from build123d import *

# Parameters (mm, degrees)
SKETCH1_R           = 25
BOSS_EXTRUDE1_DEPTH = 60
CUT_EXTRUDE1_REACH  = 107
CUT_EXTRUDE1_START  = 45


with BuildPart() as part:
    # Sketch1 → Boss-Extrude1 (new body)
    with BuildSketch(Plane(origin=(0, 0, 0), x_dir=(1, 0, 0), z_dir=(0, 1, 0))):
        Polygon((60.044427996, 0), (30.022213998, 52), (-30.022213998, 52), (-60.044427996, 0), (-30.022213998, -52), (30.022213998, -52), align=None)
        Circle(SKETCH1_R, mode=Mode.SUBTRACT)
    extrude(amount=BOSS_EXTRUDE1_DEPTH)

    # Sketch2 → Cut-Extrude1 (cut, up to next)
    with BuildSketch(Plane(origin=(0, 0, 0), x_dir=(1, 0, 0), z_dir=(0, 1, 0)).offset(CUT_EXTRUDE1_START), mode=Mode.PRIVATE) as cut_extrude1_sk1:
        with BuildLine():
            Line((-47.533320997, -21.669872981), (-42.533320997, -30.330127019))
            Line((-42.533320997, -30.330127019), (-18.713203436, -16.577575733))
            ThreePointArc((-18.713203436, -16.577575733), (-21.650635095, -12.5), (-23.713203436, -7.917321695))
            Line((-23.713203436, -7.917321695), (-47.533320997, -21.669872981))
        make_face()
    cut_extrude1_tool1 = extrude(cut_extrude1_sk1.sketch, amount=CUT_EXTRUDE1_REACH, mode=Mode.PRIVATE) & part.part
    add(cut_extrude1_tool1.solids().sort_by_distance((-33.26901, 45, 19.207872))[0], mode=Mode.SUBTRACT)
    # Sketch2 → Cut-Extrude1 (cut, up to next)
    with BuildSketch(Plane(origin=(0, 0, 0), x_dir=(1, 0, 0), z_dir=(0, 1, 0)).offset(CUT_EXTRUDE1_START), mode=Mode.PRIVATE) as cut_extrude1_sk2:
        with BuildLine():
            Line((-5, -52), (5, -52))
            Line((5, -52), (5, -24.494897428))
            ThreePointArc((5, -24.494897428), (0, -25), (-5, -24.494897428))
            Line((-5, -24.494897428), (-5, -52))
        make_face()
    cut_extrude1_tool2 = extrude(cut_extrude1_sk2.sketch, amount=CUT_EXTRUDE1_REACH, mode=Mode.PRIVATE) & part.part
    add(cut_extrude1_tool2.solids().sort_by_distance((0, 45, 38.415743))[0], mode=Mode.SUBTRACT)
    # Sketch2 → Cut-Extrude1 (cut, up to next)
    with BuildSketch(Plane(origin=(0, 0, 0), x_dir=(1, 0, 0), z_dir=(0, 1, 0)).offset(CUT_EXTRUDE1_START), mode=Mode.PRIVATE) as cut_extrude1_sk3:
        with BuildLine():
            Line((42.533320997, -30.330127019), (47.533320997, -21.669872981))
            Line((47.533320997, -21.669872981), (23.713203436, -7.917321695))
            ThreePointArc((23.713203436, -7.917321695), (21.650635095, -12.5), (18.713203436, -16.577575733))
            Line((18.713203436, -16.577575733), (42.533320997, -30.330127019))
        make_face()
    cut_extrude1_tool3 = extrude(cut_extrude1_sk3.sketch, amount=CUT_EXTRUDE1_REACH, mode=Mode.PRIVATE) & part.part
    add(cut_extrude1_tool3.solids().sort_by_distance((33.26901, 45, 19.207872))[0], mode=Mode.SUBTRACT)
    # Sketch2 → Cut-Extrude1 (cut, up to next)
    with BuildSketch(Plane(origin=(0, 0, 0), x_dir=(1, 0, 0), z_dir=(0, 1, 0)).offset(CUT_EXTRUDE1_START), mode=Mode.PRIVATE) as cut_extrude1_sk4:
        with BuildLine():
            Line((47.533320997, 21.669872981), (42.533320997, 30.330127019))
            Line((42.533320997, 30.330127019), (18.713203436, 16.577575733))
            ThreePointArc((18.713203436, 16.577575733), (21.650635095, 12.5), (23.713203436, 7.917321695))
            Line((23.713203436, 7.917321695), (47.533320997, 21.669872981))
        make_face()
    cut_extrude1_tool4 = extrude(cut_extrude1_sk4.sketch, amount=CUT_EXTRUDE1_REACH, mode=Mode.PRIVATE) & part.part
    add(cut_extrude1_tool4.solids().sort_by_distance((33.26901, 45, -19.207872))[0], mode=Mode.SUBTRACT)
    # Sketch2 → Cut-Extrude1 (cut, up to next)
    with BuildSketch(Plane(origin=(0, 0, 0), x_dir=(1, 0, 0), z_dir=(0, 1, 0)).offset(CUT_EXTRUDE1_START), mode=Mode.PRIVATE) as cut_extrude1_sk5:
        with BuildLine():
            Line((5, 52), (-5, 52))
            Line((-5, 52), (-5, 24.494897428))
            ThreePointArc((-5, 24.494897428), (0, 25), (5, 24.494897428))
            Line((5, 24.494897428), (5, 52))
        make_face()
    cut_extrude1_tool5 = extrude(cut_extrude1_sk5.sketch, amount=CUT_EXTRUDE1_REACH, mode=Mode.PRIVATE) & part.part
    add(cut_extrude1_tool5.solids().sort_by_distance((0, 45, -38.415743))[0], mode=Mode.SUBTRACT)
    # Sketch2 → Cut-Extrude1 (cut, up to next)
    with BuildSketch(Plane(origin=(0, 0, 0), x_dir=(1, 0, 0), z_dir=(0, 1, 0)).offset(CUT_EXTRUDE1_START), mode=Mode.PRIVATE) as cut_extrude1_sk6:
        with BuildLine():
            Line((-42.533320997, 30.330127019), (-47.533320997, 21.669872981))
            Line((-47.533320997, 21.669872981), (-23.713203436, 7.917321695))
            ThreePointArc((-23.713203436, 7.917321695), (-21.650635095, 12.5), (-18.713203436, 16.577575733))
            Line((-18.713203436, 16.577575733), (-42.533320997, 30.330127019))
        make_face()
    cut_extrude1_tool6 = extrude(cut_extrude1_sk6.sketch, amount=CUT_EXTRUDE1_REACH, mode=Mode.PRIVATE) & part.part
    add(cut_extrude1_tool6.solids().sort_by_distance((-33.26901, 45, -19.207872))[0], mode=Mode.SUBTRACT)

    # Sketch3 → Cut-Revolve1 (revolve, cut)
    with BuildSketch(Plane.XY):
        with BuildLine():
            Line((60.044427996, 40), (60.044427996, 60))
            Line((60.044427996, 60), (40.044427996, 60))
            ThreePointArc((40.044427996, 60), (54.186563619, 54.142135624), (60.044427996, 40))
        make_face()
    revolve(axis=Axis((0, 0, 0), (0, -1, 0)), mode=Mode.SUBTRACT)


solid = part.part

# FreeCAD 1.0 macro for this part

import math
import FreeCAD as App
import Part
import Sketcher
from FreeCAD import Vector
Q = App.Units.Quantity

doc = App.newDocument("Part")
params = doc.addObject("Spreadsheet::Sheet", "Params")
for row, (alias, value) in enumerate([
    ("sketch1_diameter", "50 mm"),
    ("pad1_length", "60 mm"),
    ("sketch2_radius", "25 mm"),
    ("sketch2_length", "10 mm"),
    ("sketch3_radius", "25 mm"),
    ("sketch3_width", "10 mm"),
    ("sketch4_radius", "25 mm"),
    ("sketch4_length", "10 mm"),
    ("sketch5_radius", "25 mm"),
    ("sketch5_length", "10 mm"),
    ("sketch6_radius", "25 mm"),
    ("sketch6_width", "10 mm"),
    ("sketch7_radius", "25 mm"),
    ("sketch7_length", "10 mm"),
    ("sketch8_radius", "20 mm"),
    ("groove_angle", "360 deg"),
], start=1):
    params.set(f"A{row}", alias)
    params.set(f"B{row}", "=" + value)
    params.setAlias(f"B{row}", alias)

body = doc.addObject("PartDesign::Body", "Body")

sketch1 = body.newObject("Sketcher::SketchObject", "Sketch")
sketch1.AttachmentSupport = (doc.getObject("XZ_Plane"), [""])
sketch1.MapMode = "FlatFace"
sketch1.addGeometry(Part.LineSegment(Vector(60, 0, 0), Vector(30, -52, 0)), False)
sketch1.addGeometry(Part.LineSegment(Vector(30, -52, 0), Vector(-30, -52, 0)), False)
sketch1.addGeometry(Part.LineSegment(Vector(-30, -52, 0), Vector(-60, 0, 0)), False)
sketch1.addGeometry(Part.LineSegment(Vector(-60, 0, 0), Vector(-30, 52, 0)), False)
sketch1.addGeometry(Part.LineSegment(Vector(-30, 52, 0), Vector(30, 52, 0)), False)
sketch1.addGeometry(Part.LineSegment(Vector(30, 52, 0), Vector(60, 0, 0)), False)
sketch1.addGeometry(Part.Circle(Vector(0, 0, 0), Vector(0, 0, 1), 25), False)
sketch1.addConstraint(Sketcher.Constraint("Coincident", 0, 2, 1, 1))
sketch1.addConstraint(Sketcher.Constraint("Coincident", 1, 2, 2, 1))
sketch1.addConstraint(Sketcher.Constraint("Coincident", 2, 2, 3, 1))
sketch1.addConstraint(Sketcher.Constraint("Coincident", 3, 2, 4, 1))
sketch1.addConstraint(Sketcher.Constraint("Coincident", 4, 2, 5, 1))
sketch1.addConstraint(Sketcher.Constraint("Coincident", 5, 2, 0, 1))
sketch1.addConstraint(Sketcher.Constraint("Horizontal", 1))
sketch1.addConstraint(Sketcher.Constraint("Horizontal", 4))
sketch1.addConstraint(Sketcher.Constraint("Coincident", 6, 3, -1, 1))
sketch1.addConstraint(Sketcher.Constraint("Symmetric", 0, 2, 3, 2, -1, 1))
sketch1.addConstraint(Sketcher.Constraint("Symmetric", 2, 2, 5, 2, -1, 1))
sketch1.addConstraint(Sketcher.Constraint("PointOnObject", 2, 2, -1))
sketch1.addConstraint(Sketcher.Constraint("Parallel", 2, 5))
sketch1.addConstraint(Sketcher.Constraint("Vertical", 1, 2, 3, 2))
sketch1.addConstraint(Sketcher.Constraint("Diameter", 6, Q("50 mm")))
sketch1.addConstraint(Sketcher.Constraint("Angle", 0, Q("-120 deg")))
sketch1.addConstraint(Sketcher.Constraint("DistanceY", 0, 2, -1, 1, Q("52 mm")))
sketch1.addConstraint(Sketcher.Constraint("DistanceX", 1, 2, 1, 1, Q("60.044428 mm")))
sketch1.setExpression("Constraints[14]", "Params.sketch1_diameter")
pad1 = body.newObject("PartDesign::Pad", "Pad")
pad1.Profile = sketch1
pad1.setExpression("Length", "Params.pad1_length")
pad1.Reversed = True

sketch2 = body.newObject("Sketcher::SketchObject", "Sketch001")
sketch2.AttachmentSupport = (doc.getObject("XZ_Plane"), [""])
sketch2.MapMode = "FlatFace"
sketch2.AttachmentOffset = App.Placement(Vector(0, 0, -45), App.Rotation())
sketch2.addGeometry(Part.LineSegment(Vector(-48, 22, 0), Vector(-43, 30, 0)), False)
sketch2.addGeometry(Part.LineSegment(Vector(-43, 30, 0), Vector(-19, 17, 0)), False)
sketch2.addGeometry(Part.ArcOfCircle(Part.Circle(Vector(0, 0, 0), Vector(0, 0, 1), 25), math.radians(138), math.radians(162)), False)
sketch2.addGeometry(Part.LineSegment(Vector(-24, 8, 0), Vector(-48, 22, 0)), False)
sketch2.addConstraint(Sketcher.Constraint("Coincident", 0, 2, 1, 1))
sketch2.addConstraint(Sketcher.Constraint("Coincident", 1, 2, 2, 1))
sketch2.addConstraint(Sketcher.Constraint("Coincident", 2, 2, 3, 1))
sketch2.addConstraint(Sketcher.Constraint("Coincident", 3, 2, 0, 1))
sketch2.addConstraint(Sketcher.Constraint("Coincident", 2, 3, -1, 1))
sketch2.addConstraint(Sketcher.Constraint("Perpendicular", 0, 1))
sketch2.addConstraint(Sketcher.Constraint("Parallel", 1, 3))
sketch2.addConstraint(Sketcher.Constraint("Equal", 1, 3))
sketch2.addConstraint(Sketcher.Constraint("Radius", 2, Q("25 mm")))
sketch2.addConstraint(Sketcher.Constraint("Angle", 0, Q("60 deg")))
sketch2.addConstraint(Sketcher.Constraint("Distance", 0, Q("10 mm")))
sketch2.addConstraint(Sketcher.Constraint("DistanceX", 0, 2, -1, 1, Q("42.533321 mm")))
sketch2.setExpression("Constraints[8]", "Params.sketch2_radius")
sketch2.setExpression("Constraints[10]", "Params.sketch2_length")
pocket1 = body.newObject("PartDesign::Pocket", "Pocket")
pocket1.Profile = sketch2
pocket1.Type = "UpToFirst"

sketch3 = body.newObject("Sketcher::SketchObject", "Sketch002")
sketch3.AttachmentSupport = (doc.getObject("XZ_Plane"), [""])
sketch3.MapMode = "FlatFace"
sketch3.AttachmentOffset = App.Placement(Vector(0, 0, -45), App.Rotation())
sketch3.addGeometry(Part.LineSegment(Vector(-5, 52, 0), Vector(5, 52, 0)), False)
sketch3.addGeometry(Part.LineSegment(Vector(5, 52, 0), Vector(5, 24, 0)), False)
sketch3.addGeometry(Part.ArcOfCircle(Part.Circle(Vector(0, 0, 0), Vector(0, 0, 1), 25), math.radians(78), math.radians(102)), False)
sketch3.addGeometry(Part.LineSegment(Vector(-5, 24, 0), Vector(-5, 52, 0)), False)
sketch3.addConstraint(Sketcher.Constraint("Coincident", 0, 2, 1, 1))
sketch3.addConstraint(Sketcher.Constraint("Coincident", 1, 2, 2, 1))
sketch3.addConstraint(Sketcher.Constraint("Coincident", 2, 2, 3, 1))
sketch3.addConstraint(Sketcher.Constraint("Coincident", 3, 2, 0, 1))
sketch3.addConstraint(Sketcher.Constraint("Horizontal", 0))
sketch3.addConstraint(Sketcher.Constraint("Vertical", 1))
sketch3.addConstraint(Sketcher.Constraint("Vertical", 3))
sketch3.addConstraint(Sketcher.Constraint("Coincident", 2, 3, -1, 1))
sketch3.addConstraint(Sketcher.Constraint("Horizontal", 1, 2, 2, 2))
sketch3.addConstraint(Sketcher.Constraint("Radius", 2, Q("25 mm")))
sketch3.addConstraint(Sketcher.Constraint("DistanceX", 0, 1, 0, 2, Q("10 mm")))
sketch3.addConstraint(Sketcher.Constraint("DistanceY", -1, 1, 0, 2, Q("52 mm")))
sketch3.setExpression("Constraints[9]", "Params.sketch3_radius")
sketch3.setExpression("Constraints[10]", "Params.sketch3_width")
pocket2 = body.newObject("PartDesign::Pocket", "Pocket001")
pocket2.Profile = sketch3
pocket2.Type = "UpToFirst"

sketch4 = body.newObject("Sketcher::SketchObject", "Sketch003")
sketch4.AttachmentSupport = (doc.getObject("XZ_Plane"), [""])
sketch4.MapMode = "FlatFace"
sketch4.AttachmentOffset = App.Placement(Vector(0, 0, -45), App.Rotation())
sketch4.addGeometry(Part.LineSegment(Vector(43, 30, 0), Vector(48, 22, 0)), False)
sketch4.addGeometry(Part.LineSegment(Vector(48, 22, 0), Vector(24, 8, 0)), False)
sketch4.addGeometry(Part.ArcOfCircle(Part.Circle(Vector(0, 0, 0), Vector(0, 0, 1), 25), math.radians(18), math.radians(42)), False)
sketch4.addGeometry(Part.LineSegment(Vector(19, 17, 0), Vector(43, 30, 0)), False)
sketch4.addConstraint(Sketcher.Constraint("Coincident", 0, 2, 1, 1))
sketch4.addConstraint(Sketcher.Constraint("Coincident", 1, 2, 2, 1))
sketch4.addConstraint(Sketcher.Constraint("Coincident", 2, 2, 3, 1))
sketch4.addConstraint(Sketcher.Constraint("Coincident", 3, 2, 0, 1))
sketch4.addConstraint(Sketcher.Constraint("Coincident", 2, 3, -1, 1))
sketch4.addConstraint(Sketcher.Constraint("Perpendicular", 0, 1))
sketch4.addConstraint(Sketcher.Constraint("Parallel", 1, 3))
sketch4.addConstraint(Sketcher.Constraint("Equal", 1, 3))
sketch4.addConstraint(Sketcher.Constraint("Radius", 2, Q("25 mm")))
sketch4.addConstraint(Sketcher.Constraint("Angle", 0, Q("-60 deg")))
sketch4.addConstraint(Sketcher.Constraint("Distance", 0, Q("10 mm")))
sketch4.addConstraint(Sketcher.Constraint("DistanceX", -1, 1, 0, 2, Q("47.533321 mm")))
sketch4.setExpression("Constraints[8]", "Params.sketch4_radius")
sketch4.setExpression("Constraints[10]", "Params.sketch4_length")
pocket3 = body.newObject("PartDesign::Pocket", "Pocket002")
pocket3.Profile = sketch4
pocket3.Type = "UpToFirst"

sketch5 = body.newObject("Sketcher::SketchObject", "Sketch004")
sketch5.AttachmentSupport = (doc.getObject("XZ_Plane"), [""])
sketch5.MapMode = "FlatFace"
sketch5.AttachmentOffset = App.Placement(Vector(0, 0, -45), App.Rotation())
sketch5.addGeometry(Part.LineSegment(Vector(48, -22, 0), Vector(43, -30, 0)), False)
sketch5.addGeometry(Part.LineSegment(Vector(43, -30, 0), Vector(19, -17, 0)), False)
sketch5.addGeometry(Part.ArcOfCircle(Part.Circle(Vector(0, 0, 0), Vector(0, 0, 1), 25), math.radians(-42), math.radians(-18)), False)
sketch5.addGeometry(Part.LineSegment(Vector(24, -8, 0), Vector(48, -22, 0)), False)
sketch5.addConstraint(Sketcher.Constraint("Coincident", 0, 2, 1, 1))
sketch5.addConstraint(Sketcher.Constraint("Coincident", 1, 2, 2, 1))
sketch5.addConstraint(Sketcher.Constraint("Coincident", 2, 2, 3, 1))
sketch5.addConstraint(Sketcher.Constraint("Coincident", 3, 2, 0, 1))
sketch5.addConstraint(Sketcher.Constraint("Coincident", 2, 3, -1, 1))
sketch5.addConstraint(Sketcher.Constraint("Perpendicular", 0, 1))
sketch5.addConstraint(Sketcher.Constraint("Parallel", 1, 3))
sketch5.addConstraint(Sketcher.Constraint("Equal", 1, 3))
sketch5.addConstraint(Sketcher.Constraint("Radius", 2, Q("25 mm")))
sketch5.addConstraint(Sketcher.Constraint("Angle", 0, Q("-120 deg")))
sketch5.addConstraint(Sketcher.Constraint("Distance", 0, Q("10 mm")))
sketch5.addConstraint(Sketcher.Constraint("DistanceX", -1, 1, 0, 2, Q("42.533321 mm")))
sketch5.setExpression("Constraints[8]", "Params.sketch5_radius")
sketch5.setExpression("Constraints[10]", "Params.sketch5_length")
pocket4 = body.newObject("PartDesign::Pocket", "Pocket003")
pocket4.Profile = sketch5
pocket4.Type = "UpToFirst"

sketch6 = body.newObject("Sketcher::SketchObject", "Sketch005")
sketch6.AttachmentSupport = (doc.getObject("XZ_Plane"), [""])
sketch6.MapMode = "FlatFace"
sketch6.AttachmentOffset = App.Placement(Vector(0, 0, -45), App.Rotation())
sketch6.addGeometry(Part.LineSegment(Vector(5, -52, 0), Vector(-5, -52, 0)), False)
sketch6.addGeometry(Part.LineSegment(Vector(-5, -52, 0), Vector(-5, -24, 0)), False)
sketch6.addGeometry(Part.ArcOfCircle(Part.Circle(Vector(0, 0, 0), Vector(0, 0, 1), 25), math.radians(-102), math.radians(-78)), False)
sketch6.addGeometry(Part.LineSegment(Vector(5, -24, 0), Vector(5, -52, 0)), False)
sketch6.addConstraint(Sketcher.Constraint("Coincident", 0, 2, 1, 1))
sketch6.addConstraint(Sketcher.Constraint("Coincident", 1, 2, 2, 1))
sketch6.addConstraint(Sketcher.Constraint("Coincident", 2, 2, 3, 1))
sketch6.addConstraint(Sketcher.Constraint("Coincident", 3, 2, 0, 1))
sketch6.addConstraint(Sketcher.Constraint("Horizontal", 0))
sketch6.addConstraint(Sketcher.Constraint("Vertical", 1))
sketch6.addConstraint(Sketcher.Constraint("Vertical", 3))
sketch6.addConstraint(Sketcher.Constraint("Coincident", 2, 3, -1, 1))
sketch6.addConstraint(Sketcher.Constraint("Horizontal", 1, 2, 2, 2))
sketch6.addConstraint(Sketcher.Constraint("Radius", 2, Q("25 mm")))
sketch6.addConstraint(Sketcher.Constraint("DistanceX", 0, 2, 0, 1, Q("10 mm")))
sketch6.addConstraint(Sketcher.Constraint("DistanceY", 0, 2, -1, 1, Q("52 mm")))
sketch6.setExpression("Constraints[9]", "Params.sketch6_radius")
sketch6.setExpression("Constraints[10]", "Params.sketch6_width")
pocket5 = body.newObject("PartDesign::Pocket", "Pocket004")
pocket5.Profile = sketch6
pocket5.Type = "UpToFirst"

sketch7 = body.newObject("Sketcher::SketchObject", "Sketch006")
sketch7.AttachmentSupport = (doc.getObject("XZ_Plane"), [""])
sketch7.MapMode = "FlatFace"
sketch7.AttachmentOffset = App.Placement(Vector(0, 0, -45), App.Rotation())
sketch7.addGeometry(Part.LineSegment(Vector(-43, -30, 0), Vector(-48, -22, 0)), False)
sketch7.addGeometry(Part.LineSegment(Vector(-48, -22, 0), Vector(-24, -8, 0)), False)
sketch7.addGeometry(Part.ArcOfCircle(Part.Circle(Vector(0, 0, 0), Vector(0, 0, 1), 25), math.radians(-162), math.radians(-138)), False)
sketch7.addGeometry(Part.LineSegment(Vector(-19, -17, 0), Vector(-43, -30, 0)), False)
sketch7.addConstraint(Sketcher.Constraint("Coincident", 0, 2, 1, 1))
sketch7.addConstraint(Sketcher.Constraint("Coincident", 1, 2, 2, 1))
sketch7.addConstraint(Sketcher.Constraint("Coincident", 2, 2, 3, 1))
sketch7.addConstraint(Sketcher.Constraint("Coincident", 3, 2, 0, 1))
sketch7.addConstraint(Sketcher.Constraint("Coincident", 2, 3, -1, 1))
sketch7.addConstraint(Sketcher.Constraint("Perpendicular", 0, 1))
sketch7.addConstraint(Sketcher.Constraint("Parallel", 1, 3))
sketch7.addConstraint(Sketcher.Constraint("Equal", 1, 3))
sketch7.addConstraint(Sketcher.Constraint("Radius", 2, Q("25 mm")))
sketch7.addConstraint(Sketcher.Constraint("Angle", 0, Q("120 deg")))
sketch7.addConstraint(Sketcher.Constraint("Distance", 0, Q("10 mm")))
sketch7.addConstraint(Sketcher.Constraint("DistanceX", 0, 2, -1, 1, Q("47.533321 mm")))
sketch7.setExpression("Constraints[8]", "Params.sketch7_radius")
sketch7.setExpression("Constraints[10]", "Params.sketch7_length")
pocket6 = body.newObject("PartDesign::Pocket", "Pocket005")
pocket6.Profile = sketch7
pocket6.Type = "UpToFirst"

sketch8 = body.newObject("Sketcher::SketchObject", "Sketch007")
sketch8.AttachmentSupport = (doc.getObject("XY_Plane"), [""])
sketch8.MapMode = "FlatFace"
sketch8.addGeometry(Part.LineSegment(Vector(60, 40, 0), Vector(60, 60, 0)), False)
sketch8.addGeometry(Part.LineSegment(Vector(60, 60, 0), Vector(40, 60, 0)), False)
sketch8.addGeometry(Part.ArcOfCircle(Part.Circle(Vector(40, 40, 0), Vector(0, 0, 1), 20), math.radians(0), math.radians(90)), False)
sketch8.addConstraint(Sketcher.Constraint("Coincident", 0, 2, 1, 1))
sketch8.addConstraint(Sketcher.Constraint("Tangent", 1, 2, 2, 2))
sketch8.addConstraint(Sketcher.Constraint("Tangent", 2, 1, 0, 1))
sketch8.addConstraint(Sketcher.Constraint("Vertical", 0))
sketch8.addConstraint(Sketcher.Constraint("Horizontal", 1))
sketch8.addConstraint(Sketcher.Constraint("Radius", 2, Q("20 mm")))
sketch8.addConstraint(Sketcher.Constraint("DistanceY", -1, 1, 2, 3, Q("40 mm")))
sketch8.addConstraint(Sketcher.Constraint("DistanceX", -1, 1, 2, 3, Q("40.044428 mm")))
sketch8.setExpression("Constraints[5]", "Params.sketch8_radius")
groove = body.newObject("PartDesign::Groove", "Groove")
groove.Profile = sketch8
groove.ReferenceAxis = (sketch8, ["V_Axis"])
groove.setExpression("Angle", "Params.groove_angle")

doc.recompute()
